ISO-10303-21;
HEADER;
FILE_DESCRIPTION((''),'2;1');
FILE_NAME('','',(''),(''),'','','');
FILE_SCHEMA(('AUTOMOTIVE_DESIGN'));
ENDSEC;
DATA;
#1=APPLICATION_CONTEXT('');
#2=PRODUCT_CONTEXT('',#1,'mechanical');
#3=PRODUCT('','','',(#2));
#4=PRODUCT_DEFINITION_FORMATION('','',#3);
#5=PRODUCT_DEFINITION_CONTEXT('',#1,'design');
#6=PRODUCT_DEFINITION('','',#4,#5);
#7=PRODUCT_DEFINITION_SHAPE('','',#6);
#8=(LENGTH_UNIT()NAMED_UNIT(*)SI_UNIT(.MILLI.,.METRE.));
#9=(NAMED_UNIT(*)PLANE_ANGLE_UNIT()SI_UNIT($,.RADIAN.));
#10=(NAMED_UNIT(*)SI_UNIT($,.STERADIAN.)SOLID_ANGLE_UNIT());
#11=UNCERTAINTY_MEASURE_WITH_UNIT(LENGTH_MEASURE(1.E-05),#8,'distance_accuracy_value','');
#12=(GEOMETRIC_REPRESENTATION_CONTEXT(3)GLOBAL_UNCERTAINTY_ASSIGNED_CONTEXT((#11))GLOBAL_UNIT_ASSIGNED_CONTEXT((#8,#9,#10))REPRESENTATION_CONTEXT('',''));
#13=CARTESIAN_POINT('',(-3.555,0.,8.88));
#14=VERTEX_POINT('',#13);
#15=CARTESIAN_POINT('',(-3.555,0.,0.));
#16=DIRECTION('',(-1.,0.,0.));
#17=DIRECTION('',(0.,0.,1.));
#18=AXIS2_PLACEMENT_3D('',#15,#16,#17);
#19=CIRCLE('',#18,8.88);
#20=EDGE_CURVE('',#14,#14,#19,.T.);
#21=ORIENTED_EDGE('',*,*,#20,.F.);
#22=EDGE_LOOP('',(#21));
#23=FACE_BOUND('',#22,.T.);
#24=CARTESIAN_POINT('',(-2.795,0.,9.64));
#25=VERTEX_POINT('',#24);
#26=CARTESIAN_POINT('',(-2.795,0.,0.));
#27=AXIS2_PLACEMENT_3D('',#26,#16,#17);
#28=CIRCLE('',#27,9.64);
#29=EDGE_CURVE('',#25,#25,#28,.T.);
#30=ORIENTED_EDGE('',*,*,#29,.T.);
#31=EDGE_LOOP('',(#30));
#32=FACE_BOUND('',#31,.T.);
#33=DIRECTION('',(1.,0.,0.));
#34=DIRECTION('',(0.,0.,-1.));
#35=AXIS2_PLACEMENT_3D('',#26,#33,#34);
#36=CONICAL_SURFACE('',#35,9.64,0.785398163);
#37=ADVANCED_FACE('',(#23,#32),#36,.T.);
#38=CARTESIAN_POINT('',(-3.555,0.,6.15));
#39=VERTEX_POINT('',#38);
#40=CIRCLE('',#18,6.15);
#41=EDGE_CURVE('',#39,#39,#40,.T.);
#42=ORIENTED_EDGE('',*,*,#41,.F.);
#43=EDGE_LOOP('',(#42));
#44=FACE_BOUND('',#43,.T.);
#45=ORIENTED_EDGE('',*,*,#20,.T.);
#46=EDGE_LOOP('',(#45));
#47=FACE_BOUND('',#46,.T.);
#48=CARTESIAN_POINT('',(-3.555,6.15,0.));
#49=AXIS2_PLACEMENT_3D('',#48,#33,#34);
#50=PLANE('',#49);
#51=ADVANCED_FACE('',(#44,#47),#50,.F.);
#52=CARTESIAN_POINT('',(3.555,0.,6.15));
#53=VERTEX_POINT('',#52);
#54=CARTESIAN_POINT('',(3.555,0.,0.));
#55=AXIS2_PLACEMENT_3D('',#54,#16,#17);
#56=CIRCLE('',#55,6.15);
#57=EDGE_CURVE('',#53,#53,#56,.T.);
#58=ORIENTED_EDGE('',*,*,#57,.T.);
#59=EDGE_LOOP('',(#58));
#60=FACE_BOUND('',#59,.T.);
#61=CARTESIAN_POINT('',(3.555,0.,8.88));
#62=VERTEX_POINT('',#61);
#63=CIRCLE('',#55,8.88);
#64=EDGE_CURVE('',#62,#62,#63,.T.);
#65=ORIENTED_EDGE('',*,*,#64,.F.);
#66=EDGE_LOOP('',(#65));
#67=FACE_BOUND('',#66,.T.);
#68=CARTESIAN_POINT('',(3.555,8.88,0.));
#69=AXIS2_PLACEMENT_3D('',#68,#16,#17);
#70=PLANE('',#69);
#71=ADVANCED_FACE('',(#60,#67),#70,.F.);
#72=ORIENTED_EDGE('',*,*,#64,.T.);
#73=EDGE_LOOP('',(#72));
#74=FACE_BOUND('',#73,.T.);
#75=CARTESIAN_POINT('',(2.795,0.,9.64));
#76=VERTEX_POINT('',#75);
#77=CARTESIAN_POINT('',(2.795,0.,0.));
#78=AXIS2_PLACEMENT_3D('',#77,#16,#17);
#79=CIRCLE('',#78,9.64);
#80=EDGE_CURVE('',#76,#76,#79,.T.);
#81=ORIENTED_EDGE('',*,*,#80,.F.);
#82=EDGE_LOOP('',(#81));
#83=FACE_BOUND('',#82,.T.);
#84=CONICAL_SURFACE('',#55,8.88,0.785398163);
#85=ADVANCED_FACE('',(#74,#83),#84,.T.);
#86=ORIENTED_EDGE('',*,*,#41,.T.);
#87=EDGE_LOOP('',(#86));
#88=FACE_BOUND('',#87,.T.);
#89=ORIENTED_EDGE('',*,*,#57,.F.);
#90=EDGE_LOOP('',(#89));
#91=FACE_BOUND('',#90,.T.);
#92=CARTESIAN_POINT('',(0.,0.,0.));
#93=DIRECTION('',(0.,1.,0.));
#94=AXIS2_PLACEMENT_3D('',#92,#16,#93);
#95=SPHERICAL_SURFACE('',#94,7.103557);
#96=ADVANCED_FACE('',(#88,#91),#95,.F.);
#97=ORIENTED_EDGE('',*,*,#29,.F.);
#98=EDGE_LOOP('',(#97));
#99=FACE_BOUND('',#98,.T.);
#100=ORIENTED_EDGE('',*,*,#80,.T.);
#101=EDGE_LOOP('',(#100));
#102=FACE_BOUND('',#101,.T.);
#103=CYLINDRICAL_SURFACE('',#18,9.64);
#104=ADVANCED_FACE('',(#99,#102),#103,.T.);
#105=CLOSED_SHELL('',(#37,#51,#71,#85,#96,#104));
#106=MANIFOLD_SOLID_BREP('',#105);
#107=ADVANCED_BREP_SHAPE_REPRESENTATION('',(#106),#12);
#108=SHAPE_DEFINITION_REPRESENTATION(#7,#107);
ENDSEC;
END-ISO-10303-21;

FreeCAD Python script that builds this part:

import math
import FreeCAD as App
import Part
import Sketcher

V = App.Vector
Q = App.Units.Quantity

doc = App.newDocument("Part")
body = doc.addObject("PartDesign::Body", "Body")

sketch1 = doc.addObject("Sketcher::SketchObject", "Sketch")
body.addObject(sketch1)
sketch1.AttachmentSupport = (doc.XY_Plane, [""])
sketch1.MapMode = "FlatFace"
sketch1.addGeometry([
    Part.LineSegment(V(-3.6, 8.9, 0), V(-3.6, 6.2, 0)),
    Part.ArcOfCircle(Part.Circle(V(0, 0, 0), V(0, 0, 1), 7.1), math.radians(60), math.radians(120)),
    Part.LineSegment(V(3.6, 6.2, 0), V(3.6, 8.9, 0)),
    Part.LineSegment(V(3.6, 8.9, 0), V(2.8, 9.6, 0)),
    Part.LineSegment(V(2.8, 9.6, 0), V(-2.8, 9.6, 0)),
    Part.LineSegment(V(-2.8, 9.6, 0), V(-3.6, 8.9, 0)),
], False)
sketch1.addConstraint([
    Sketcher.Constraint("Coincident", 0, 2, 1, 2),
    Sketcher.Constraint("Coincident", 1, 1, 2, 1),
    Sketcher.Constraint("Coincident", 2, 2, 3, 1),
    Sketcher.Constraint("Coincident", 3, 2, 4, 1),
    Sketcher.Constraint("Coincident", 4, 2, 5, 1),
    Sketcher.Constraint("Coincident", 5, 2, 0, 1),
    Sketcher.Constraint("Vertical", 0),
    Sketcher.Constraint("Vertical", 2),
    Sketcher.Constraint("Horizontal", 4),
    Sketcher.Constraint("Coincident", 1, 3, -1, 1),
    Sketcher.Constraint("Symmetric", 2, 2, 5, 2, -2),
    Sketcher.Constraint("Perpendicular", 3, 5),
    Sketcher.Constraint("Equal", 3, 5),
    Sketcher.Constraint("DistanceX", 4, 2, 4, 1, Q("5.59 mm")),
    Sketcher.Constraint("DistanceY", 0, 2, 0, 1, Q("2.73 mm")),
    Sketcher.Constraint("DistanceY", -1, 1, 0, 2, Q("6.15 mm")),
    Sketcher.Constraint("DistanceY", -1, 1, 3, 2, Q("9.64 mm")),
])
revolution = doc.addObject("PartDesign::Revolution", "Revolution")
body.addObject(revolution)
revolution.Profile = sketch1
revolution.ReferenceAxis = (sketch1, ["H_Axis"])
revolution.Angle = 360

doc.recompute()
